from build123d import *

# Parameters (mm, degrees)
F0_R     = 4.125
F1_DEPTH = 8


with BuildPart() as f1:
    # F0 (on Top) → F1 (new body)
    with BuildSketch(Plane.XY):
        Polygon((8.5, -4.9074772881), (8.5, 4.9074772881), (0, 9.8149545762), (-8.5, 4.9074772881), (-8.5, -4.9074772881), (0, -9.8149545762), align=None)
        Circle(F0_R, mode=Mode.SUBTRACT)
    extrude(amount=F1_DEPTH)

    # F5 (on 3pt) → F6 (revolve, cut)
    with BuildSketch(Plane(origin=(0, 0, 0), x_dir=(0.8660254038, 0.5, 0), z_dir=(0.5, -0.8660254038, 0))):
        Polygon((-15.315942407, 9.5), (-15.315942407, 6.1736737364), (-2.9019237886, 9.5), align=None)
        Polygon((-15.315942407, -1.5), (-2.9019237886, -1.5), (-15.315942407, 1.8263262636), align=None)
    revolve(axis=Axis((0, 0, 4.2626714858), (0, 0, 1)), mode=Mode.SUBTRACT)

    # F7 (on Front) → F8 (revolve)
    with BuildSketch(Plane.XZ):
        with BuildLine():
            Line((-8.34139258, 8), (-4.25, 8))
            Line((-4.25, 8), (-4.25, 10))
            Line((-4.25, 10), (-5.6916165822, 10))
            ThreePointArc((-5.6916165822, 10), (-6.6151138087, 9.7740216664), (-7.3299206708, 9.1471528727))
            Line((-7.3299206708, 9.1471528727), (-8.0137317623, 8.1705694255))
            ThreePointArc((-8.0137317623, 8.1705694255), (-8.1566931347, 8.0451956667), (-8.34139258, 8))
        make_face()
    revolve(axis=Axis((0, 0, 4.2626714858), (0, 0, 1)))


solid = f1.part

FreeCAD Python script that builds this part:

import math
import FreeCAD as App
import Part
import Sketcher
Q = App.Units.Quantity


def add_polygon(sketch, points):
    """Adds a closed chain of lines whose ends are joined by coincident constraints."""
    first, n = sketch.GeometryCount, len(points)
    for a, b in zip(points, points[1:] + points[:1]):
        sketch.addGeometry(Part.LineSegment(App.Vector(*a, 0), App.Vector(*b, 0)), False)
    for i in range(n):
        sketch.addConstraint(Sketcher.Constraint("Coincident", first + i, 2, first + (i + 1) % n, 1))

doc = App.newDocument("Part")
body = doc.addObject("PartDesign::Body", "Body")

sketch1 = body.newObject("Sketcher::SketchObject", "Sketch")
sketch1.AttachmentSupport = (doc.getObject("XY_Plane"), [""])
sketch1.MapMode = "FlatFace"
add_polygon(sketch1, [(8.5, -4.9), (8.5, 4.9), (0, 9.8), (-8.5, 4.9), (-8.5, -4.9), (0, -9.8)])
sketch1.addGeometry(Part.Circle(App.Vector(0, 0, 0), App.Vector(0, 0, 1), 4.1), False)
sketch1.addConstraint(Sketcher.Constraint("Vertical", 0))
sketch1.addConstraint(Sketcher.Constraint("Vertical", 3))
sketch1.addConstraint(Sketcher.Constraint("Coincident", 6, 3, -1, 1))
sketch1.addConstraint(Sketcher.Constraint("Symmetric", 0, 2, 3, 2, -1, 1))
sketch1.addConstraint(Sketcher.Constraint("Symmetric", 1, 2, 4, 2, -1, 1))
sketch1.addConstraint(Sketcher.Constraint("PointOnObject", 1, 2, -2))
sketch1.addConstraint(Sketcher.Constraint("Parallel", 2, 5))
sketch1.addConstraint(Sketcher.Constraint("Horizontal", 0, 2, 2, 2))
sketch1.addConstraint(Sketcher.Constraint("Diameter", 6, 8.25))
sketch1.addConstraint(Sketcher.Constraint("Angle", 1, Q("150 deg")))
sketch1.addConstraint(Sketcher.Constraint("DistanceX", 2, 2, 0, 2, 17.0))
sketch1.addConstraint(Sketcher.Constraint("DistanceY", 0, 1, 0, 2, 9.814955))
pad1 = body.newObject("PartDesign::Pad", "Pad")
pad1.Profile = sketch1
pad1.Length = 8

sketch2 = body.newObject("Sketcher::SketchObject", "Sketch001")
sketch2.Placement = App.Placement(App.Vector(0, 0, 0), App.Rotation(App.Vector(0.866025404, 0.5, 0), App.Vector(0, 0, 1), App.Vector(0.5, -0.866025404, 0), "ZXY"))
add_polygon(sketch2, [(-15.3, 9.5), (-15.3, 6.2), (-2.9, 9.5)])
add_polygon(sketch2, [(-15.3, -1.5), (-2.9, -1.5), (-15.3, 1.8)])
sketch2.addConstraint(Sketcher.Constraint("Vertical", 0))
sketch2.addConstraint(Sketcher.Constraint("Horizontal", 2))
sketch2.addConstraint(Sketcher.Constraint("Horizontal", 3))
sketch2.addConstraint(Sketcher.Constraint("Vertical", 5))
sketch2.addConstraint(Sketcher.Constraint("Vertical", 1, 2, 3, 2))
sketch2.addConstraint(Sketcher.Constraint("Vertical", 2, 2, 4, 2))
sketch2.addConstraint(Sketcher.Constraint("Equal", 0, 5))
sketch2.addConstraint(Sketcher.Constraint("Angle", 1, Q("15 deg")))
sketch2.addConstraint(Sketcher.Constraint("DistanceY", 3, 2, 1, 2, 11.0))
sketch2.addConstraint(Sketcher.Constraint("DistanceY", -1, 1, 1, 2, 9.5))
sketch2.addConstraint(Sketcher.Constraint("DistanceX", 2, 2, 2, 1, 12.414019))
sketch2.addConstraint(Sketcher.Constraint("DistanceX", 0, 2, -1, 1, 15.315942))
groove = body.newObject("PartDesign::Groove", "Groove")
groove.Profile = sketch2
groove.ReferenceAxis = (sketch2, ["V_Axis"])
groove.Angle = 360

sketch3 = body.newObject("Sketcher::SketchObject", "Sketch002")
sketch3.AttachmentSupport = (doc.getObject("XZ_Plane"), [""])
sketch3.MapMode = "FlatFace"
sketch3.addGeometry(Part.LineSegment(App.Vector(-8.34, 8, 0), App.Vector(-4.25, 8, 0)), False)
sketch3.addGeometry(Part.LineSegment(App.Vector(-4.25, 8, 0), App.Vector(-4.25, 10, 0)), False)
sketch3.addGeometry(Part.LineSegment(App.Vector(-4.25, 10, 0), App.Vector(-5.69, 10, 0)), False)
sketch3.addGeometry(Part.ArcOfCircle(Part.Circle(App.Vector(-5.69, 8, 0), App.Vector(0, 0, 1), 2), math.radians(90), math.radians(145)), False)
sketch3.addGeometry(Part.LineSegment(App.Vector(-7.33, 9.15, 0), App.Vector(-8.01, 8.17, 0)), False)
sketch3.addGeometry(Part.ArcOfCircle(Part.Circle(App.Vector(-8.34, 8.4, 0), App.Vector(0, 0, 1), 0.4), math.radians(-90), math.radians(-35)), False)
sketch3.addConstraint(Sketcher.Constraint("Coincident", 0, 2, 1, 1))
sketch3.addConstraint(Sketcher.Constraint("Coincident", 1, 2, 2, 1))
sketch3.addConstraint(Sketcher.Constraint("Tangent", 2, 2, 3, 1))
sketch3.addConstraint(Sketcher.Constraint("Tangent", 3, 2, 4, 1))
sketch3.addConstraint(Sketcher.Constraint("Tangent", 4, 2, 5, 2))
sketch3.addConstraint(Sketcher.Constraint("Tangent", 5, 1, 0, 1))
sketch3.addConstraint(Sketcher.Constraint("Horizontal", 0))
sketch3.addConstraint(Sketcher.Constraint("Vertical", 1))
sketch3.addConstraint(Sketcher.Constraint("Horizontal", 2))
sketch3.addConstraint(Sketcher.Constraint("Horizontal", 3, 3, 0, 2))
sketch3.addConstraint(Sketcher.Constraint("Radius", 3, 2.0))
sketch3.addConstraint(Sketcher.Constraint("Radius", 5, 0.4))
sketch3.addConstraint(Sketcher.Constraint("Angle", 4, Q("-125 deg")))
sketch3.addConstraint(Sketcher.Constraint("DistanceY", -1, 1, 3, 3, 8.0))
sketch3.addConstraint(Sketcher.Constraint("DistanceX", 0, 2, -1, 1, 4.25))
sketch3.addConstraint(Sketcher.Constraint("DistanceX", 0, 1, 0, 2, 4.091393))
revolution = body.newObject("PartDesign::Revolution", "Revolution")
revolution.Profile = sketch3
revolution.ReferenceAxis = (sketch3, ["V_Axis"])
revolution.Angle = 360

doc.recompute()
